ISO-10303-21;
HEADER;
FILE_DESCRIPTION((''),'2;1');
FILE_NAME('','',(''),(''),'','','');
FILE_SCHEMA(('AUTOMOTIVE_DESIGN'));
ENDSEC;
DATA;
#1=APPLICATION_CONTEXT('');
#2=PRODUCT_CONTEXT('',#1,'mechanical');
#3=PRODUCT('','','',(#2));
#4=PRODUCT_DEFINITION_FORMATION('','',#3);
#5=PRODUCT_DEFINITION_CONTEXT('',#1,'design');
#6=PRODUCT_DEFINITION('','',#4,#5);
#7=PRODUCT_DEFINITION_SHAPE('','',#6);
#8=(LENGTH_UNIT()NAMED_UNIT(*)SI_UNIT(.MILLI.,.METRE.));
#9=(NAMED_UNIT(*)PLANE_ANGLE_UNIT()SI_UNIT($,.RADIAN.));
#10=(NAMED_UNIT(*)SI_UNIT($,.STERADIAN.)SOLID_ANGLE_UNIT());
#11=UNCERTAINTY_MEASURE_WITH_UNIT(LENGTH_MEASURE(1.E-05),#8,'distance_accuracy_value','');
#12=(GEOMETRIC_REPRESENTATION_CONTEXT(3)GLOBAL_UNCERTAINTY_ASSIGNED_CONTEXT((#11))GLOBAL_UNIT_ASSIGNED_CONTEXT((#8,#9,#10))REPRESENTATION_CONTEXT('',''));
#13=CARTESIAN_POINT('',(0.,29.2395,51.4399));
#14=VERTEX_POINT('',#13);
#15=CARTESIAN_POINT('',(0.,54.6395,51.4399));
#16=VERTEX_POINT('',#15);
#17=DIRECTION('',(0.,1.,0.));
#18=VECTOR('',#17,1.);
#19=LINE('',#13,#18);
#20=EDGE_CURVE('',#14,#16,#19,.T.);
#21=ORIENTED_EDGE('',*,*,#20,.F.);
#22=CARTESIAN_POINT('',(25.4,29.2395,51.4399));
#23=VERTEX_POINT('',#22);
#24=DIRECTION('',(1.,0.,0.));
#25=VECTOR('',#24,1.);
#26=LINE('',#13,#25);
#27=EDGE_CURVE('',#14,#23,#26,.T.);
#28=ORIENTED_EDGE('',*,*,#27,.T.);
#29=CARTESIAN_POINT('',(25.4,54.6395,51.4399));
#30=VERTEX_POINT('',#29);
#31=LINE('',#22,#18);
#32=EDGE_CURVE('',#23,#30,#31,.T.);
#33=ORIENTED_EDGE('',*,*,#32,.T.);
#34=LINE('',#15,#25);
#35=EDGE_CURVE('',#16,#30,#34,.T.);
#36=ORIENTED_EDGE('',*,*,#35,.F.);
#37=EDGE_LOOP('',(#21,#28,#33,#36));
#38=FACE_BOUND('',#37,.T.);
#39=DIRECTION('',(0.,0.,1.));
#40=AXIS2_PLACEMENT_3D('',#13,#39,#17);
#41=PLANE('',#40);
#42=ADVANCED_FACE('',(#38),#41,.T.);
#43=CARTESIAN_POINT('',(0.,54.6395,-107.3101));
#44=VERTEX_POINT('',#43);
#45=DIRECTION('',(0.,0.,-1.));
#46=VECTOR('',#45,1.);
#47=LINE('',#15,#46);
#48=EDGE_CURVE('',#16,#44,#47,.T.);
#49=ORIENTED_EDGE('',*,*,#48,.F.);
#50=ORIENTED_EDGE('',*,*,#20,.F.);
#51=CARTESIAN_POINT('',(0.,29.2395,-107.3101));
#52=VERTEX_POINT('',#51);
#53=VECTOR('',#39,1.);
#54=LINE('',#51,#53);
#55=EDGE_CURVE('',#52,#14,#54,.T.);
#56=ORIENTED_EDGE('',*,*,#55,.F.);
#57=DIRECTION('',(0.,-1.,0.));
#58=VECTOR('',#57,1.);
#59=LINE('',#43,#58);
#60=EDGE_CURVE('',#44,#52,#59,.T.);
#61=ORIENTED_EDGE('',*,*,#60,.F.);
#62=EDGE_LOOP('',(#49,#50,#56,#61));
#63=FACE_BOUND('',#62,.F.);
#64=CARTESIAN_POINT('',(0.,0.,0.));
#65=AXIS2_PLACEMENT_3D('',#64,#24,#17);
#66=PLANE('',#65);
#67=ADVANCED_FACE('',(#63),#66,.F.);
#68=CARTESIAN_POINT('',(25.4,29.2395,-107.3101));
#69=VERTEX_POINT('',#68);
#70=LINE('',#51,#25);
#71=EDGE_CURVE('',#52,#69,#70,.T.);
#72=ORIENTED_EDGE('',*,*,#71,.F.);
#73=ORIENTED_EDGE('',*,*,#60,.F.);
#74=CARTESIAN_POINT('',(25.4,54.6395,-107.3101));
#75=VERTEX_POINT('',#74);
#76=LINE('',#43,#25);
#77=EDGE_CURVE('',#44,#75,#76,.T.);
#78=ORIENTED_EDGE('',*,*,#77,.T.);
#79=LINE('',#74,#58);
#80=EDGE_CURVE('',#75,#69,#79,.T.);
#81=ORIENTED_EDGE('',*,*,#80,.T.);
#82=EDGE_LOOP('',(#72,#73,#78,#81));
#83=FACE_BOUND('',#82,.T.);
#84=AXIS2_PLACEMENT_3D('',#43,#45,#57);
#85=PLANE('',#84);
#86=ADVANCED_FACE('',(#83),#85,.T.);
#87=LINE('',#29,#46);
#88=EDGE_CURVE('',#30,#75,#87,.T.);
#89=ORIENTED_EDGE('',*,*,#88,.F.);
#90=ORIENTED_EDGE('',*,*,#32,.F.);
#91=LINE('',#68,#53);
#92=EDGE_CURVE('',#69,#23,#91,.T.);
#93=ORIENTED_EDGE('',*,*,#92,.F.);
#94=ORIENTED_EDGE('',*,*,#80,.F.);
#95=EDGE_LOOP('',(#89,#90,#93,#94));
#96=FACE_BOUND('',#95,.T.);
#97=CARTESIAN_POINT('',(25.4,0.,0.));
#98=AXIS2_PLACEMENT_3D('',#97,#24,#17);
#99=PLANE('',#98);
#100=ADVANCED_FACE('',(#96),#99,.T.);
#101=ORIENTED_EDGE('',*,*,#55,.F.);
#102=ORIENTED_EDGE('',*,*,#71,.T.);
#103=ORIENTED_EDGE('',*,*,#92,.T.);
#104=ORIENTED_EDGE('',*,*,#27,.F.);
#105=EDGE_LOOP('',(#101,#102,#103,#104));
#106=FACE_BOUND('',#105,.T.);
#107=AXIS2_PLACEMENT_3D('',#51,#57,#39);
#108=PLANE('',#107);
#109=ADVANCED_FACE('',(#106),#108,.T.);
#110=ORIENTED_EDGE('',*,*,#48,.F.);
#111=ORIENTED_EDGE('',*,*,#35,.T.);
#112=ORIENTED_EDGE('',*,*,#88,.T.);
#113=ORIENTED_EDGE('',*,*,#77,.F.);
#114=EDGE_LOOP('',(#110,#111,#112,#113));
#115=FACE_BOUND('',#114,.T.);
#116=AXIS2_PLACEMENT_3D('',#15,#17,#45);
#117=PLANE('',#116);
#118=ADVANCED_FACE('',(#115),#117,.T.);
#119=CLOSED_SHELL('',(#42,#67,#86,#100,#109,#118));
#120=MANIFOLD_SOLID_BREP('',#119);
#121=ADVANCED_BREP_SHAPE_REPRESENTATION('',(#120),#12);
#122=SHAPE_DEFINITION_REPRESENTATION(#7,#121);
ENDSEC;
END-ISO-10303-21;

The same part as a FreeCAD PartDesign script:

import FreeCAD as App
import Part
import Sketcher

V = App.Vector
Q = App.Units.Quantity

doc = App.newDocument("Part")
body = doc.addObject("PartDesign::Body", "Body")

sketch1 = body.newObject("Sketcher::SketchObject", "Sketch")
sketch1.AttachmentSupport = (doc.getObject("YZ_Plane"), [""])
sketch1.MapMode = "FlatFace"
sketch1.addGeometry(Part.LineSegment(V(55, 51, 0), V(29, 51, 0)), False)
sketch1.addGeometry(Part.LineSegment(V(29, 51, 0), V(29, -107, 0)), False)
sketch1.addGeometry(Part.LineSegment(V(29, -107, 0), V(55, -107, 0)), False)
sketch1.addGeometry(Part.LineSegment(V(55, -107, 0), V(55, 51, 0)), False)
sketch1.addConstraint(Sketcher.Constraint("Coincident", 0, 2, 1, 1))
sketch1.addConstraint(Sketcher.Constraint("Coincident", 1, 2, 2, 1))
sketch1.addConstraint(Sketcher.Constraint("Coincident", 2, 2, 3, 1))
sketch1.addConstraint(Sketcher.Constraint("Coincident", 3, 2, 0, 1))
sketch1.addConstraint(Sketcher.Constraint("Horizontal", 0))
sketch1.addConstraint(Sketcher.Constraint("Vertical", 1))
sketch1.addConstraint(Sketcher.Constraint("Horizontal", 2))
sketch1.addConstraint(Sketcher.Constraint("Vertical", 3))
sketch1.addConstraint(Sketcher.Constraint("DistanceX", 0, 2, 0, 1, Q("1 in")))
sketch1.addConstraint(Sketcher.Constraint("DistanceY", 1, 2, 1, 1, Q("6.25 in")))
sketch1.addConstraint(Sketcher.Constraint("DistanceY", -1, 1, 0, 2, Q("2.0252 in")))
sketch1.addConstraint(Sketcher.Constraint("DistanceX", -1, 1, 0, 2, Q("29.2395 mm")))
pad1 = body.newObject("PartDesign::Pad", "Pad")
pad1.Profile = sketch1
pad1.Length = Q("1 in")

doc.recompute()
